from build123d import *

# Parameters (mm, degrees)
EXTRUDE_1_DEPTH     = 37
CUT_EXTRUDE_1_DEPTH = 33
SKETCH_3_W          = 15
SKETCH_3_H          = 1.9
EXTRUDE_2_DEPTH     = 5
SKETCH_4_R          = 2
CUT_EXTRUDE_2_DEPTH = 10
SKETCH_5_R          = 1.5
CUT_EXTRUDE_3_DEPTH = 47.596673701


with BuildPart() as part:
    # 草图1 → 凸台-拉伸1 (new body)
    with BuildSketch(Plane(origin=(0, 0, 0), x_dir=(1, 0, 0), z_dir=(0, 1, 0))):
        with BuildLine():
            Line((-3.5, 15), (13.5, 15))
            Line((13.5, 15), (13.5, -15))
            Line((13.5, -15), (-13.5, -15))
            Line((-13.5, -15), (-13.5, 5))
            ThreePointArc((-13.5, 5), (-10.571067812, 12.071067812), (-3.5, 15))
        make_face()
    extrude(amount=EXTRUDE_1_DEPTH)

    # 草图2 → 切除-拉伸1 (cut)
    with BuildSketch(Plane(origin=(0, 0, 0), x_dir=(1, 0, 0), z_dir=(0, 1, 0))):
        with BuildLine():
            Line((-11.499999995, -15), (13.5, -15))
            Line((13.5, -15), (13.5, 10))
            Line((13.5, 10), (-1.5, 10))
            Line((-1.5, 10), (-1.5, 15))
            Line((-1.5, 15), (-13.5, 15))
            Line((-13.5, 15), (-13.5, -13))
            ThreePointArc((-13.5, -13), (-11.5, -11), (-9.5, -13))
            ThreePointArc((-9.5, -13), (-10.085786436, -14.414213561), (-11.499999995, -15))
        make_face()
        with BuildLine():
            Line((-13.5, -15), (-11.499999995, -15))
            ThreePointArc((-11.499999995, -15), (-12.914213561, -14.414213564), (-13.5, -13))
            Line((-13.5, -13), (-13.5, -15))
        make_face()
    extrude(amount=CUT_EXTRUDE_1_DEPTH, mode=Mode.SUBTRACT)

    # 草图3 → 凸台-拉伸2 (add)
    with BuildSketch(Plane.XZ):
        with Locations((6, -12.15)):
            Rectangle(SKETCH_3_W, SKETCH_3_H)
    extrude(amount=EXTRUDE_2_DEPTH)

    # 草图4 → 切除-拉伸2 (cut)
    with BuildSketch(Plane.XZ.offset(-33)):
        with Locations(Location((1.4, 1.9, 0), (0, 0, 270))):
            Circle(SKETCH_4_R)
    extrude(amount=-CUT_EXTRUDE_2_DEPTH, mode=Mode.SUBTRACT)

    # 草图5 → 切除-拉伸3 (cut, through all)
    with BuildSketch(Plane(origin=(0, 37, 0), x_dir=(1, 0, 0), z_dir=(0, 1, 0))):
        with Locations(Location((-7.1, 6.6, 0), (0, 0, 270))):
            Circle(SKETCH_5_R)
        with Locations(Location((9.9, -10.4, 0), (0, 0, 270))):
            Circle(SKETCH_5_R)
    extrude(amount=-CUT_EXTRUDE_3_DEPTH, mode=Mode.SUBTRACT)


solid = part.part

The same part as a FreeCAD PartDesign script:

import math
import FreeCAD as App
import Part
import Sketcher

V = App.Vector
Q = App.Units.Quantity


def add_polygon(sketch, points):
    """Adds a closed chain of lines whose ends are joined by coincident constraints."""
    first, n = sketch.GeometryCount, len(points)
    for a, b in zip(points, points[1:] + points[:1]):
        sketch.addGeometry(Part.LineSegment(App.Vector(*a, 0), App.Vector(*b, 0)), False)
    for i in range(n):
        sketch.addConstraint(Sketcher.Constraint("Coincident", first + i, 2, first + (i + 1) % n, 1))

doc = App.newDocument("Part")
body = doc.addObject("PartDesign::Body", "Body")

sketch1 = doc.addObject("Sketcher::SketchObject", "Sketch")
body.addObject(sketch1)
sketch1.AttachmentSupport = (doc.XZ_Plane, [""])
sketch1.MapMode = "FlatFace"
sketch1.addGeometry(Part.LineSegment(V(14, -15, 0), V(-4, -15, 0)), False)
sketch1.addGeometry(Part.ArcOfCircle(Part.Circle(V(-4, -5, 0), V(0, 0, 1), 10), math.radians(180), math.radians(270)), False)
sketch1.addGeometry(Part.LineSegment(V(-14, -5, 0), V(-14, 15, 0)), False)
sketch1.addGeometry(Part.LineSegment(V(-14, 15, 0), V(14, 15, 0)), False)
sketch1.addGeometry(Part.LineSegment(V(14, 15, 0), V(14, -15, 0)), False)
sketch1.addConstraint(Sketcher.Constraint("Tangent", 0, 2, 1, 2))
sketch1.addConstraint(Sketcher.Constraint("Tangent", 1, 1, 2, 1))
sketch1.addConstraint(Sketcher.Constraint("Coincident", 2, 2, 3, 1))
sketch1.addConstraint(Sketcher.Constraint("Coincident", 3, 2, 4, 1))
sketch1.addConstraint(Sketcher.Constraint("Coincident", 4, 2, 0, 1))
sketch1.addConstraint(Sketcher.Constraint("Horizontal", 0))
sketch1.addConstraint(Sketcher.Constraint("Vertical", 2))
sketch1.addConstraint(Sketcher.Constraint("Horizontal", 3))
sketch1.addConstraint(Sketcher.Constraint("Vertical", 4))
sketch1.addConstraint(Sketcher.Constraint("Symmetric", 2, 2, 4, 2, -1, 1))
sketch1.addConstraint(Sketcher.Constraint("Radius", 1, Q("10 mm")))
sketch1.addConstraint(Sketcher.Constraint("DistanceX", 0, 2, 0, 1, Q("17 mm")))
sketch1.addConstraint(Sketcher.Constraint("DistanceY", 2, 1, 2, 2, Q("20 mm")))
pad1 = doc.addObject("PartDesign::Pad", "Pad")
body.addObject(pad1)
pad1.Profile = sketch1
pad1.Length = 37
pad1.Reversed = True

sketch2 = doc.addObject("Sketcher::SketchObject", "Sketch001")
body.addObject(sketch2)
sketch2.AttachmentSupport = (doc.XZ_Plane, [""])
sketch2.MapMode = "FlatFace"
sketch2.addGeometry(Part.LineSegment(V(-11.5, 15, 0), V(13.5, 15, 0)), False)
sketch2.addGeometry(Part.LineSegment(V(13.5, 15, 0), V(13.5, -10, 0)), False)
sketch2.addGeometry(Part.LineSegment(V(13.5, -10, 0), V(-1.5, -10, 0)), False)
sketch2.addGeometry(Part.LineSegment(V(-1.5, -10, 0), V(-1.5, -15, 0)), False)
sketch2.addGeometry(Part.LineSegment(V(-1.5, -15, 0), V(-13.5, -15, 0)), False)
sketch2.addGeometry(Part.LineSegment(V(-13.5, -15, 0), V(-13.5, 13, 0)), False)
sketch2.addGeometry(Part.ArcOfCircle(Part.Circle(V(-11.5, 13, 0), V(0, 0, 1), 2), math.radians(180), math.radians(360)), False)
sketch2.addGeometry(Part.ArcOfCircle(Part.Circle(V(-11.5, 13, 0), V(0, 0, 1), 2), math.radians(0), math.radians(90)), False)
sketch2.addGeometry(Part.LineSegment(V(-13.5, 15, 0), V(-11.5, 15, 0)), False)
sketch2.addGeometry(Part.ArcOfCircle(Part.Circle(V(-11.5, 13, 0), V(0, 0, 1), 2), math.radians(90), math.radians(180)), False)
sketch2.addGeometry(Part.LineSegment(V(-13.5, 13, 0), V(-13.5, 15, 0)), False)
sketch2.addConstraint(Sketcher.Constraint("Coincident", 0, 2, 1, 1))
sketch2.addConstraint(Sketcher.Constraint("Coincident", 1, 2, 2, 1))
sketch2.addConstraint(Sketcher.Constraint("Coincident", 2, 2, 3, 1))
sketch2.addConstraint(Sketcher.Constraint("Coincident", 3, 2, 4, 1))
sketch2.addConstraint(Sketcher.Constraint("Coincident", 4, 2, 5, 1))
sketch2.addConstraint(Sketcher.Constraint("Tangent", 5, 2, 6, 1))
sketch2.addConstraint(Sketcher.Constraint("Tangent", 6, 2, 7, 1))
sketch2.addConstraint(Sketcher.Constraint("Tangent", 7, 2, 0, 1))
sketch2.addConstraint(Sketcher.Constraint("Tangent", 8, 2, 9, 1))
sketch2.addConstraint(Sketcher.Constraint("Tangent", 9, 2, 10, 1))
sketch2.addConstraint(Sketcher.Constraint("Coincident", 10, 2, 8, 1))
sketch2.addConstraint(Sketcher.Constraint("Horizontal", 0))
sketch2.addConstraint(Sketcher.Constraint("Vertical", 1))
sketch2.addConstraint(Sketcher.Constraint("Horizontal", 2))
sketch2.addConstraint(Sketcher.Constraint("Vertical", 3))
sketch2.addConstraint(Sketcher.Constraint("Horizontal", 4))
sketch2.addConstraint(Sketcher.Constraint("Vertical", 5))
sketch2.addConstraint(Sketcher.Constraint("Horizontal", 8))
sketch2.addConstraint(Sketcher.Constraint("Vertical", 10))
sketch2.addConstraint(Sketcher.Constraint("Coincident", 9, 3, 6, 3))
sketch2.addConstraint(Sketcher.Constraint("Coincident", 8, 2, 7, 2))
sketch2.addConstraint(Sketcher.Constraint("Symmetric", 0, 2, 4, 2, -1, 1))
sketch2.addConstraint(Sketcher.Constraint("Horizontal", 5, 2, 6, 2))
sketch2.addConstraint(Sketcher.Constraint("Equal", 0, 1))
sketch2.addConstraint(Sketcher.Constraint("Radius", 6, Q("2 mm")))
sketch2.addConstraint(Sketcher.Constraint("DistanceX", 0, 1, 0, 2, Q("25 mm")))
sketch2.addConstraint(Sketcher.Constraint("DistanceX", 2, 2, 2, 1, Q("15 mm")))
sketch2.addConstraint(Sketcher.Constraint("DistanceY", 3, 2, 3, 1, Q("5 mm")))
pocket1 = doc.addObject("PartDesign::Pocket", "Pocket")
body.addObject(pocket1)
pocket1.Profile = sketch2
pocket1.Length = 33

sketch3 = doc.addObject("Sketcher::SketchObject", "Sketch002")
body.addObject(sketch3)
sketch3.AttachmentSupport = (doc.XZ_Plane, [""])
sketch3.MapMode = "FlatFace"
add_polygon(sketch3, [(-1.5, -11.2), (-1.5, -13.1), (13.5, -13.1), (13.5, -11.2)])
sketch3.addConstraint(Sketcher.Constraint("Vertical", 0))
sketch3.addConstraint(Sketcher.Constraint("Horizontal", 1))
sketch3.addConstraint(Sketcher.Constraint("Vertical", 2))
sketch3.addConstraint(Sketcher.Constraint("Horizontal", 3))
sketch3.addConstraint(Sketcher.Constraint("DistanceX", 1, 1, 1, 2, Q("15 mm")))
sketch3.addConstraint(Sketcher.Constraint("DistanceY", 0, 2, 0, 1, Q("1.9 mm")))
sketch3.addConstraint(Sketcher.Constraint("DistanceX", 0, 2, -1, 1, Q("1.5 mm")))
sketch3.addConstraint(Sketcher.Constraint("DistanceY", 0, 2, -1, 1, Q("13.1 mm")))
pad2 = doc.addObject("PartDesign::Pad", "Pad001")
body.addObject(pad2)
pad2.Profile = sketch3
pad2.Length = 5

sketch4 = doc.addObject("Sketcher::SketchObject", "Sketch003")
body.addObject(sketch4)
sketch4.AttachmentSupport = (doc.XZ_Plane, [""])
sketch4.MapMode = "FlatFace"
sketch4.AttachmentOffset = App.Placement(V(0, 0, -33), App.Rotation())
sketch4.addGeometry(Part.Circle(V(1.4, 1.9, 0), V(0, 0, 1), 2), False)
sketch4.addConstraint(Sketcher.Constraint("Diameter", 0, Q("4 mm")))
sketch4.addConstraint(Sketcher.Constraint("DistanceX", -1, 1, 0, 3, Q("1.4 mm")))
sketch4.addConstraint(Sketcher.Constraint("DistanceY", -1, 1, 0, 3, Q("1.9 mm")))
pocket2 = doc.addObject("PartDesign::Pocket", "Pocket001")
body.addObject(pocket2)
pocket2.Profile = sketch4
pocket2.Length = 10

sketch5 = doc.addObject("Sketcher::SketchObject", "Sketch004")
body.addObject(sketch5)
sketch5.AttachmentSupport = (doc.XZ_Plane, [""])
sketch5.MapMode = "FlatFace"
sketch5.AttachmentOffset = App.Placement(V(0, 0, -37), App.Rotation())
sketch5.addGeometry(Part.Circle(V(-7.1, -6.6, 0), V(0, 0, 1), 1.5), False)
sketch5.addGeometry(Part.Circle(V(9.9, 10.4, 0), V(0, 0, 1), 1.5), False)
sketch5.addConstraint(Sketcher.Constraint("Equal", 0, 1))
sketch5.addConstraint(Sketcher.Constraint("Diameter", 0, Q("3 mm")))
sketch5.addConstraint(Sketcher.Constraint("DistanceX", 0, 3, 1, 3, Q("17 mm")))
sketch5.addConstraint(Sketcher.Constraint("DistanceY", 0, 3, 1, 3, Q("17 mm")))
sketch5.addConstraint(Sketcher.Constraint("DistanceX", 0, 3, -1, 1, Q("7.1 mm")))
sketch5.addConstraint(Sketcher.Constraint("DistanceY", 0, 3, -1, 1, Q("6.6 mm")))
pocket3 = doc.addObject("PartDesign::Pocket", "Pocket002")
body.addObject(pocket3)
pocket3.Profile = sketch5
pocket3.Type = "ThroughAll"
pocket3.Reversed = True

doc.recompute()
